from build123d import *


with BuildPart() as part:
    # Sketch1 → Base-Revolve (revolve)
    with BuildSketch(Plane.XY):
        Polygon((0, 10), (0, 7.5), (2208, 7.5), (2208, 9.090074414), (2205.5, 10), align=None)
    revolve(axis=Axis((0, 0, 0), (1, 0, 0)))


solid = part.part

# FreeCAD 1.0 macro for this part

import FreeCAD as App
import Part
import Sketcher
from FreeCAD import Vector
Q = App.Units.Quantity

doc = App.newDocument("Part")
body = doc.addObject("PartDesign::Body", "Body")

sketch1 = doc.addObject("Sketcher::SketchObject", "Sketch")
body.addObject(sketch1)
sketch1.AttachmentSupport = (doc.XY_Plane, [""])
sketch1.MapMode = "FlatFace"
sketch1.addGeometry([
    Part.LineSegment(Vector(0, 10, 0), Vector(0, 7.5, 0)),
    Part.LineSegment(Vector(0, 7.5, 0), Vector(2208, 7.5, 0)),
    Part.LineSegment(Vector(2208, 7.5, 0), Vector(2208, 9.1, 0)),
    Part.LineSegment(Vector(2208, 9.1, 0), Vector(2205.5, 10, 0)),
    Part.LineSegment(Vector(2205.5, 10, 0), Vector(0, 10, 0)),
], False)
sketch1.addConstraint([
    Sketcher.Constraint("Coincident", 0, 2, 1, 1),
    Sketcher.Constraint("Coincident", 1, 2, 2, 1),
    Sketcher.Constraint("Coincident", 2, 2, 3, 1),
    Sketcher.Constraint("Coincident", 3, 2, 4, 1),
    Sketcher.Constraint("Coincident", 4, 2, 0, 1),
    Sketcher.Constraint("Vertical", 0),
    Sketcher.Constraint("Horizontal", 1),
    Sketcher.Constraint("Vertical", 2),
    Sketcher.Constraint("Horizontal", 4),
    Sketcher.Constraint("PointOnObject", 0, 2, -2),
    Sketcher.Constraint("DistanceX", 1, 1, 1, 2, 2208.0),
    Sketcher.Constraint("Angle", 3, Q("160 deg")),
    Sketcher.Constraint("DistanceX", 4, 2, 4, 1, 2205.5),
    Sketcher.Constraint("DistanceY", 0, 2, 0, 1, 2.5),
    Sketcher.Constraint("DistanceY", -1, 1, 3, 2, 10.0),
])
revolution = doc.addObject("PartDesign::Revolution", "Revolution")
body.addObject(revolution)
revolution.Profile = sketch1
revolution.ReferenceAxis = (sketch1, ["H_Axis"])
revolution.Angle = 360

doc.recompute()
